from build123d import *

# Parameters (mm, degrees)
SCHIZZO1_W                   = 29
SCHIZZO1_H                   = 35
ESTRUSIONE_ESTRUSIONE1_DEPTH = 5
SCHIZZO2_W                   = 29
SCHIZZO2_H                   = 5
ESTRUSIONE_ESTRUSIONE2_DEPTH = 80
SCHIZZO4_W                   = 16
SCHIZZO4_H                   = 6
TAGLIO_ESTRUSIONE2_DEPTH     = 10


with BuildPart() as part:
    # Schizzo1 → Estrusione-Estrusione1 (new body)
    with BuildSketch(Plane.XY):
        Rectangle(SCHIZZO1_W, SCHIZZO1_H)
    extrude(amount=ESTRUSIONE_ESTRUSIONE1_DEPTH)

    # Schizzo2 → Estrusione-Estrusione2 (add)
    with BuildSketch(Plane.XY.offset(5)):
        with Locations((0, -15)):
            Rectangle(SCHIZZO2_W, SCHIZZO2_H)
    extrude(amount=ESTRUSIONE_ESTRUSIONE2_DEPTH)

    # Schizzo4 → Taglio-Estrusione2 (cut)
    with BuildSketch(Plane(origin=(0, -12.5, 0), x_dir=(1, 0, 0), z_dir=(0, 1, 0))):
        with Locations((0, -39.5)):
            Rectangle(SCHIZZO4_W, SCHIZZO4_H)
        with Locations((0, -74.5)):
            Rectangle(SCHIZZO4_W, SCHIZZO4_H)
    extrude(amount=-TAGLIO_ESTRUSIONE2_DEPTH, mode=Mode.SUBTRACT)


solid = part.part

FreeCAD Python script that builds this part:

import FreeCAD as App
import Part
import Sketcher

V = App.Vector


def add_polygon(sketch, points):
    """Adds a closed chain of lines whose ends are joined by coincident constraints."""
    first, n = sketch.GeometryCount, len(points)
    for a, b in zip(points, points[1:] + points[:1]):
        sketch.addGeometry(Part.LineSegment(App.Vector(*a, 0), App.Vector(*b, 0)), False)
    for i in range(n):
        sketch.addConstraint(Sketcher.Constraint("Coincident", first + i, 2, first + (i + 1) % n, 1))

doc = App.newDocument("Part")
body = doc.addObject("PartDesign::Body", "Body")

sketch1 = body.newObject("Sketcher::SketchObject", "Sketch")
sketch1.AttachmentSupport = (doc.getObject("XY_Plane"), [""])
sketch1.MapMode = "FlatFace"
add_polygon(sketch1, [(-14, 18), (-14, -18), (14, -18), (14, 18)])
sketch1.addConstraint([
    Sketcher.Constraint("Vertical", 0),
    Sketcher.Constraint("Horizontal", 1),
    Sketcher.Constraint("Vertical", 2),
    Sketcher.Constraint("Horizontal", 3),
    Sketcher.Constraint("Symmetric", 0, 2, 2, 2, -1, 1),
    Sketcher.Constraint("DistanceX", 1, 1, 1, 2, 29.0),
    Sketcher.Constraint("DistanceY", 0, 2, 0, 1, 35.0),
])
pad1 = body.newObject("PartDesign::Pad", "Pad")
pad1.Profile = sketch1
pad1.Length = 5

sketch2 = body.newObject("Sketcher::SketchObject", "Sketch001")
sketch2.AttachmentSupport = (doc.getObject("XY_Plane"), [""])
sketch2.MapMode = "FlatFace"
sketch2.AttachmentOffset = App.Placement(V(0, 0, 5), App.Rotation())
add_polygon(sketch2, [(-14, -12), (-14, -18), (14, -18), (14, -12)])
sketch2.addConstraint([
    Sketcher.Constraint("Vertical", 0),
    Sketcher.Constraint("Horizontal", 1),
    Sketcher.Constraint("Vertical", 2),
    Sketcher.Constraint("Horizontal", 3),
    Sketcher.Constraint("DistanceX", 1, 1, 1, 2, 29.0),
    Sketcher.Constraint("DistanceY", 0, 2, 0, 1, 5.0),
    Sketcher.Constraint("DistanceX", 0, 2, -1, 1, 14.5),
    Sketcher.Constraint("DistanceY", 0, 2, -1, 1, 17.5),
])
pad2 = body.newObject("PartDesign::Pad", "Pad001")
pad2.Profile = sketch2
pad2.Length = 80

sketch3 = body.newObject("Sketcher::SketchObject", "Sketch002")
sketch3.AttachmentSupport = (doc.getObject("XZ_Plane"), [""])
sketch3.MapMode = "FlatFace"
sketch3.AttachmentOffset = App.Placement(V(0, 0, 12.5), App.Rotation())
add_polygon(sketch3, [(-8, 36), (-8, 42), (8, 42), (8, 36)])
add_polygon(sketch3, [(-8, 72), (-8, 78), (8, 78), (8, 72)])
sketch3.addConstraint([
    Sketcher.Constraint("Vertical", 0),
    Sketcher.Constraint("Horizontal", 1),
    Sketcher.Constraint("Vertical", 2),
    Sketcher.Constraint("Horizontal", 3),
    Sketcher.Constraint("Vertical", 4),
    Sketcher.Constraint("Horizontal", 5),
    Sketcher.Constraint("Vertical", 6),
    Sketcher.Constraint("Horizontal", 7),
    Sketcher.Constraint("Vertical", 3, 2, 4, 2),
    Sketcher.Constraint("Vertical", 2, 2, 5, 2),
    Sketcher.Constraint("Equal", 2, 4),
    Sketcher.Constraint("DistanceX", 1, 1, 1, 2, 16.0),
    Sketcher.Constraint("DistanceY", 0, 1, 0, 2, 6.0),
    Sketcher.Constraint("DistanceX", 0, 2, -1, 1, 8.0),
    Sketcher.Constraint("DistanceY", 0, 2, 4, 2, 35.0),
    Sketcher.Constraint("DistanceY", -1, 1, 0, 2, 42.5),
])
pocket1 = body.newObject("PartDesign::Pocket", "Pocket")
pocket1.Profile = sketch3
pocket1.Length = 10
pocket1.Reversed = True

doc.recompute()
